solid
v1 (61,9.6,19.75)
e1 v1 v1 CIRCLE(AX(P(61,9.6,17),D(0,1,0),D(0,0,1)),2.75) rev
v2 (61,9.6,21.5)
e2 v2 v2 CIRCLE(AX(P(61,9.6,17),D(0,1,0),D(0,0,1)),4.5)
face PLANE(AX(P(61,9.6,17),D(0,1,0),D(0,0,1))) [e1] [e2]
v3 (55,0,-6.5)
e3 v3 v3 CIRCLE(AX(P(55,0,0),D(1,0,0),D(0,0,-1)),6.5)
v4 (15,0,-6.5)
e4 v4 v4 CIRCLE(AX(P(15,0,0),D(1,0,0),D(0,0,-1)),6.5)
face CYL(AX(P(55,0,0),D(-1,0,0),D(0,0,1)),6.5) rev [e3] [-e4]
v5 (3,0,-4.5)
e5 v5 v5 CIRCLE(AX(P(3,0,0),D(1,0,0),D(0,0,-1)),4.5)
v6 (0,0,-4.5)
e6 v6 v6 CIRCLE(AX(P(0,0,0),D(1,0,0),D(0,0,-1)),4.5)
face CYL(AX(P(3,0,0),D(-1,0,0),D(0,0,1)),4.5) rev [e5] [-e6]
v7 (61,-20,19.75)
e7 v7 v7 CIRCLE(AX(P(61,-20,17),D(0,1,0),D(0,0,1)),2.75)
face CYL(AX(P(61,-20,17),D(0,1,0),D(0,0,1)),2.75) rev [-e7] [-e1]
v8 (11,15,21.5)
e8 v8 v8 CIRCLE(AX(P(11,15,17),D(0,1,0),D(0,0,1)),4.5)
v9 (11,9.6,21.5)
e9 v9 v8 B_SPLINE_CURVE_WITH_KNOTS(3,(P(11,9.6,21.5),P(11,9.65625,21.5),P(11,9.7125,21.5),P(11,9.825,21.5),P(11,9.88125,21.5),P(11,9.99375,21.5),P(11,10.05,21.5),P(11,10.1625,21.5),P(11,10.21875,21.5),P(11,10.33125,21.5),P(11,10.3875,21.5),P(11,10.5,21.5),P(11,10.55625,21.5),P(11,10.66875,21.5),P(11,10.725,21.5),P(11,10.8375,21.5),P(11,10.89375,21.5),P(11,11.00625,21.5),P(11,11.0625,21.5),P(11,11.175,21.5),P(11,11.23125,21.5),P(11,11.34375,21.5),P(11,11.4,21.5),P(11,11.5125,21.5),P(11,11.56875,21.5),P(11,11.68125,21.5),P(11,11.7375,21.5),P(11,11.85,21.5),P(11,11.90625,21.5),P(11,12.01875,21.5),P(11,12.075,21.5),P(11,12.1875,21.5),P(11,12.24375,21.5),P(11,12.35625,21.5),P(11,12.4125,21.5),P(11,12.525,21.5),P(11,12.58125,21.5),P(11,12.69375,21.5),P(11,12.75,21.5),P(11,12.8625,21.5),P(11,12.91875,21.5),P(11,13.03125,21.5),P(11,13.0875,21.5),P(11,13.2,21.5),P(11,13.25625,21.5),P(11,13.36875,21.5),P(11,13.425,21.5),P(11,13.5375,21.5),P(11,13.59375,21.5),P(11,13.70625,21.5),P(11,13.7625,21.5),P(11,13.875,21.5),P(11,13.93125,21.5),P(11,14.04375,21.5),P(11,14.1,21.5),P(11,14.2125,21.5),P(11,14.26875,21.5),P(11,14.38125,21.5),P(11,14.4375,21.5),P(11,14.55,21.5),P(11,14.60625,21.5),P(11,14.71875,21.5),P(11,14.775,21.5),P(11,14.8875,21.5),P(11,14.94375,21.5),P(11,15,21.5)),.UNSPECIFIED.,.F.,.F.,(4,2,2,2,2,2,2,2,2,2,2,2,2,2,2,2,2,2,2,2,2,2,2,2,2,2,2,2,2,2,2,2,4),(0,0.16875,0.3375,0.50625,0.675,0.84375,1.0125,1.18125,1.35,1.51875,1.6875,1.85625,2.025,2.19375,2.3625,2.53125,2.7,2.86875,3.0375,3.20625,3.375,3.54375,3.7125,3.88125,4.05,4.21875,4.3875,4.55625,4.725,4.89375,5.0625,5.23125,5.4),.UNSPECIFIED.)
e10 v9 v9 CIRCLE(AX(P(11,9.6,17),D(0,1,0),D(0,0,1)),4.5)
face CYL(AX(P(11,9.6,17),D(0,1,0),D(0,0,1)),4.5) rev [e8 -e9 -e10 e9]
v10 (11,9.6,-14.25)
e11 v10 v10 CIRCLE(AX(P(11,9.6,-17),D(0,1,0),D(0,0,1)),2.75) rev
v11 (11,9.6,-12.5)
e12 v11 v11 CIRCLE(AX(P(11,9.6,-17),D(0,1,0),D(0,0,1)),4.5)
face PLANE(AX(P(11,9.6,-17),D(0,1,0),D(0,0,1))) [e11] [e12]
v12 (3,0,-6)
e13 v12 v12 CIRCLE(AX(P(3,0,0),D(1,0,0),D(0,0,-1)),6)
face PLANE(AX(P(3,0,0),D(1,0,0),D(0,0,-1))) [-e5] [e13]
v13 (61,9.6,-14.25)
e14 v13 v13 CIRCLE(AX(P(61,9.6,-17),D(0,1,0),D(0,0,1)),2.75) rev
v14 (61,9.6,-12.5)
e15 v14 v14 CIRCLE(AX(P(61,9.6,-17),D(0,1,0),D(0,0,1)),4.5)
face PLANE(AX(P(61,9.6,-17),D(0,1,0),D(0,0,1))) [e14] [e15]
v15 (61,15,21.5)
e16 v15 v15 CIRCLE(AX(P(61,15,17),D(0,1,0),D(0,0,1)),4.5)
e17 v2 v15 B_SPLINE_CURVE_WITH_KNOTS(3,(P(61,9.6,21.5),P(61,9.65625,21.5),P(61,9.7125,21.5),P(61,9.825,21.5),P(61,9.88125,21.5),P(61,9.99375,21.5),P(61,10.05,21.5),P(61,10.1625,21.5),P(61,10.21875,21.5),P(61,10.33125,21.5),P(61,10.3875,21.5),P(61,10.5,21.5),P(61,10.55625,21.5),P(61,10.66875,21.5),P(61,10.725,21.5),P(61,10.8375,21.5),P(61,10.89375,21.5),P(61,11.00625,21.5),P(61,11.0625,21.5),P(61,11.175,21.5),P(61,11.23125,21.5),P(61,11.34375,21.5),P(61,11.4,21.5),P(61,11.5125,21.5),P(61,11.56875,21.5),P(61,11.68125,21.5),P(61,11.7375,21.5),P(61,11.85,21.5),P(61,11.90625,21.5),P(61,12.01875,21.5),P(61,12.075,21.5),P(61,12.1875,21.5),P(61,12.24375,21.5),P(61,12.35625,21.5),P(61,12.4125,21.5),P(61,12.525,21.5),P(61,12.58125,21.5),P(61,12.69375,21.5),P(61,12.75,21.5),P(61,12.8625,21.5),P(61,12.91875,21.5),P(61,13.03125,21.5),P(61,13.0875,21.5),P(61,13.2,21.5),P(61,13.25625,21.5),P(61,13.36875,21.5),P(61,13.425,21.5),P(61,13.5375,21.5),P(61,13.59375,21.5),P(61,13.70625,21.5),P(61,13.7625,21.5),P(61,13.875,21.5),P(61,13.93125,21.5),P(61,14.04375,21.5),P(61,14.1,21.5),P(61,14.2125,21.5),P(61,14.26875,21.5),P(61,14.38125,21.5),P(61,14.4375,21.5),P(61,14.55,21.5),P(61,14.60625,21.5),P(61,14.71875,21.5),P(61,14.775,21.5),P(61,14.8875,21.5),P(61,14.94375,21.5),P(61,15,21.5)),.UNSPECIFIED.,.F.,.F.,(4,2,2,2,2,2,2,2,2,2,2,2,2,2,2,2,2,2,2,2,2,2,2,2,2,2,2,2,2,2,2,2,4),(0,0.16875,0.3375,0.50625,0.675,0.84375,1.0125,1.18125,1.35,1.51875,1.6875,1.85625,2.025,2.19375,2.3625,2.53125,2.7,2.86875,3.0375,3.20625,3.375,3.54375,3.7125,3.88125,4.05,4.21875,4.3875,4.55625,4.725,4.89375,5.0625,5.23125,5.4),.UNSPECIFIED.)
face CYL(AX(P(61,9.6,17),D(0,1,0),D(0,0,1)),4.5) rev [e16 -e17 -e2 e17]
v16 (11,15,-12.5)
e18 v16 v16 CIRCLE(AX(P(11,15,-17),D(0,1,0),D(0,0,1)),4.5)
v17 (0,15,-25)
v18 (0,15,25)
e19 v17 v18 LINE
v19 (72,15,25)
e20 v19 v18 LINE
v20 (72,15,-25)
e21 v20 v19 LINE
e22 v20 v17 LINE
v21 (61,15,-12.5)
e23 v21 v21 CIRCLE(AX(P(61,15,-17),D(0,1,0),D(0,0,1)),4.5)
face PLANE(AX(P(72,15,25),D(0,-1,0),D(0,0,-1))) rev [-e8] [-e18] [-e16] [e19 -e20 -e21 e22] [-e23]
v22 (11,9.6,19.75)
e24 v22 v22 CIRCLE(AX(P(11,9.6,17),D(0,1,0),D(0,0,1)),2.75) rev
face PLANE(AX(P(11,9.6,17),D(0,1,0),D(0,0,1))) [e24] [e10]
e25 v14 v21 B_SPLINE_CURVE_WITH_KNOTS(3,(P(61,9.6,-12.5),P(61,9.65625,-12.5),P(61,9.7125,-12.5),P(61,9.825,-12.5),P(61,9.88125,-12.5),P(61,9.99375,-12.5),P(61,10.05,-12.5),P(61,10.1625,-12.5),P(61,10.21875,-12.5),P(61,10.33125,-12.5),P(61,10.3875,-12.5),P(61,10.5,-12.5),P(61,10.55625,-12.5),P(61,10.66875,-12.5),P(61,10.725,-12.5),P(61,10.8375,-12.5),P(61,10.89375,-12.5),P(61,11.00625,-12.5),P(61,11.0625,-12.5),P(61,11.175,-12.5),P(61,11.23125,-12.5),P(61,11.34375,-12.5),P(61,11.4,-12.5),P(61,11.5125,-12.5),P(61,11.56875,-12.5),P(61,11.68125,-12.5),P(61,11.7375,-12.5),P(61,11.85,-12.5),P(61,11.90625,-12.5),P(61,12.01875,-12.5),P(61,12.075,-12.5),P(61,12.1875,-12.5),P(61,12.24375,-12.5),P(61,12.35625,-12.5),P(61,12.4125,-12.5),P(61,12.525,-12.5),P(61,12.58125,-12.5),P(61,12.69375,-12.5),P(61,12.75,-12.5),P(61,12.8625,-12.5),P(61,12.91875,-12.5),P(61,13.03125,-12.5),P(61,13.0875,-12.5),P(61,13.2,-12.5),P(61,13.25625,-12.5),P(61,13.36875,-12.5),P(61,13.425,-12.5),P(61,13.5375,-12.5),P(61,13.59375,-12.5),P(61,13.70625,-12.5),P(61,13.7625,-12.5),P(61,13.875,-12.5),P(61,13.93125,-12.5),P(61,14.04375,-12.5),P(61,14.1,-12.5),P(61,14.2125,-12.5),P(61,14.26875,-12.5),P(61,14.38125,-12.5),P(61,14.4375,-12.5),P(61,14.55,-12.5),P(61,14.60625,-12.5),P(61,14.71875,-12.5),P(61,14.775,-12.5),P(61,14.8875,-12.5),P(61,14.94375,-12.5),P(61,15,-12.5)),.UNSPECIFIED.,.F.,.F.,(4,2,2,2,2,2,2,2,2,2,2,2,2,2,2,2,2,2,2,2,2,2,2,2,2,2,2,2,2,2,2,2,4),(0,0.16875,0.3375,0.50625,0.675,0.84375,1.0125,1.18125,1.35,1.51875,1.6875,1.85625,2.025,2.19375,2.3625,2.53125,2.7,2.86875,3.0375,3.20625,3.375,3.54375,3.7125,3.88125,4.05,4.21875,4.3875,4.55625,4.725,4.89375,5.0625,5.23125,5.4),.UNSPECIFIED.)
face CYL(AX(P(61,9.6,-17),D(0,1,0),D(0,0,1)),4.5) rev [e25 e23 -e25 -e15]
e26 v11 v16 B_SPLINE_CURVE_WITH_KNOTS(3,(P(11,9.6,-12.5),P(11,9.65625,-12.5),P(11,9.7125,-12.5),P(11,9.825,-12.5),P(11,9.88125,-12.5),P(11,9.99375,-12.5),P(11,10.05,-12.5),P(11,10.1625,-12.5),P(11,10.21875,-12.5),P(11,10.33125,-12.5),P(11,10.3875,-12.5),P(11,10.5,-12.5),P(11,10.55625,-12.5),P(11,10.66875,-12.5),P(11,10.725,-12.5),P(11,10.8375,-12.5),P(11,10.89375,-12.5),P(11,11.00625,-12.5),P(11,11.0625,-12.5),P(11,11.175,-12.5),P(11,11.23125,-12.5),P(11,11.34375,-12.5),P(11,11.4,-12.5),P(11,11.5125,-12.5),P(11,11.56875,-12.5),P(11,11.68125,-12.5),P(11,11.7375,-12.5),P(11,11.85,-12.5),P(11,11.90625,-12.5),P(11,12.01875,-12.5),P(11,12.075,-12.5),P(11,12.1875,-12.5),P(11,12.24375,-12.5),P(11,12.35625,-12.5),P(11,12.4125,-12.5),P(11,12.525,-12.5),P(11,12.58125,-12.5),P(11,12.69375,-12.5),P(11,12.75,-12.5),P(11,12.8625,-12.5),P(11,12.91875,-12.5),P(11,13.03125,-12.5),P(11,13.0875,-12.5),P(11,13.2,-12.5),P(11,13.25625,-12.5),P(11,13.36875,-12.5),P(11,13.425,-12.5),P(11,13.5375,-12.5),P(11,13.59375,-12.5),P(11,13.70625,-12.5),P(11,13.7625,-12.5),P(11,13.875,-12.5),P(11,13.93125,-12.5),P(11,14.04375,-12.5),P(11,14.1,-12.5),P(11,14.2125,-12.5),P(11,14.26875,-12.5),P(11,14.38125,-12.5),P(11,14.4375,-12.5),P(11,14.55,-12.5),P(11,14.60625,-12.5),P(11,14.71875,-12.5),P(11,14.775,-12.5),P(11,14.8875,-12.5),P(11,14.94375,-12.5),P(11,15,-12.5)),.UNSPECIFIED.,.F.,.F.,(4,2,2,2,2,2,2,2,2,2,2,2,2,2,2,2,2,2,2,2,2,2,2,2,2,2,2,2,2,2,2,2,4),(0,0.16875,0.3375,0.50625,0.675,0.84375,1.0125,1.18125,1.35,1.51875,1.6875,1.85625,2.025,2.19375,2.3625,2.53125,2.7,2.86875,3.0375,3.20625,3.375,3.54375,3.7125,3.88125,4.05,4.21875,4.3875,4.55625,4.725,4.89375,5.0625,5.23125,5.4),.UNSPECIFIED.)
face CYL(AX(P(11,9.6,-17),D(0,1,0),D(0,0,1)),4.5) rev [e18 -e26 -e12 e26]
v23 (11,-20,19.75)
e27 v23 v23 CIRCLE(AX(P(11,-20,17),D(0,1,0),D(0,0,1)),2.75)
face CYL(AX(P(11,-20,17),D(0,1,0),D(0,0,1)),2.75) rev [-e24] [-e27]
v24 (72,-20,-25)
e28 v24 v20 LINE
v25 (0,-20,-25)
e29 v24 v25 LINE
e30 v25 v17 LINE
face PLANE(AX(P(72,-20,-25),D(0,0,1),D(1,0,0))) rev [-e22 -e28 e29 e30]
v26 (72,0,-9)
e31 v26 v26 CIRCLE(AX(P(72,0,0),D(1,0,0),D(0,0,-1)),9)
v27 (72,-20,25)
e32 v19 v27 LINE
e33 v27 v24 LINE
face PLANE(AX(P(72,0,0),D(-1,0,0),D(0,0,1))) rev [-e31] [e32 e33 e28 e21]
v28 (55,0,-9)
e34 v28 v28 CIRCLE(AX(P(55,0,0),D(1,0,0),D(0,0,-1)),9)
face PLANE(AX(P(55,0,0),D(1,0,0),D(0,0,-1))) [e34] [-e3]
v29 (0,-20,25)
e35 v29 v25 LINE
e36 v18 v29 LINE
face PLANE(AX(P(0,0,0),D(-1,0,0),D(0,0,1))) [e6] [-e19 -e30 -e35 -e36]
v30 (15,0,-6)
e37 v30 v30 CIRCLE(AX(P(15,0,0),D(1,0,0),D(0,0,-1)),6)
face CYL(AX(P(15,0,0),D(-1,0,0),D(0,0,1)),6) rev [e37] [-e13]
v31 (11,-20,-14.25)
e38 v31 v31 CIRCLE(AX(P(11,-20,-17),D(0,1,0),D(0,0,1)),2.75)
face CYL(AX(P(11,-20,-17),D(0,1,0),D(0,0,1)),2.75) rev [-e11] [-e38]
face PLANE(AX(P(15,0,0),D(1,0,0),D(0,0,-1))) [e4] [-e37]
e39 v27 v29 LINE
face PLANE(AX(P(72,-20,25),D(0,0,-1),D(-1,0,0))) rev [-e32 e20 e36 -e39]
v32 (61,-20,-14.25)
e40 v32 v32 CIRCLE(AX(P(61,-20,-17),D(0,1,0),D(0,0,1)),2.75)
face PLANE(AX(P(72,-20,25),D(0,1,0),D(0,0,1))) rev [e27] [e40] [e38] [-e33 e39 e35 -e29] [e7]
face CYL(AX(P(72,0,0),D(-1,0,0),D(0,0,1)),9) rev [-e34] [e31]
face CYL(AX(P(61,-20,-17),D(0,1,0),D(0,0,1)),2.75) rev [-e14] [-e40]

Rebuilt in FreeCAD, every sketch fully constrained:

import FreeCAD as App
import Part
import Sketcher
from FreeCAD import Vector

doc = App.newDocument("Part")
body = doc.addObject("PartDesign::Body", "Body")

sketch1 = body.newObject("Sketcher::SketchObject", "Sketch")
sketch1.AttachmentSupport = (doc.getObject("YZ_Plane"), [""])
sketch1.MapMode = "FlatFace"
sketch1.addGeometry([
    Part.LineSegment(Vector(15, 25, 0), Vector(-20, 25, 0)),
    Part.LineSegment(Vector(-20, 25, 0), Vector(-20, -25, 0)),
    Part.LineSegment(Vector(-20, -25, 0), Vector(15, -25, 0)),
    Part.LineSegment(Vector(15, -25, 0), Vector(15, 25, 0)),
], False)
sketch1.addConstraint([
    Sketcher.Constraint("Coincident", 0, 2, 1, 1),
    Sketcher.Constraint("Coincident", 1, 2, 2, 1),
    Sketcher.Constraint("Coincident", 2, 2, 3, 1),
    Sketcher.Constraint("Coincident", 3, 2, 0, 1),
    Sketcher.Constraint("Horizontal", 0),
    Sketcher.Constraint("Vertical", 1),
    Sketcher.Constraint("Horizontal", 2),
    Sketcher.Constraint("Vertical", 3),
    Sketcher.Constraint("DistanceX", 0, 2, 0, 1, 35.0),
    Sketcher.Constraint("DistanceY", 1, 2, 1, 1, 50.0),
    Sketcher.Constraint("DistanceX", 0, 2, -1, 1, 20.0),
    Sketcher.Constraint("DistanceY", -1, 1, 0, 2, 25.0),
])
pad1 = body.newObject("PartDesign::Pad", "Pad")
pad1.Profile = sketch1
pad1.Length = 72

sketch2 = body.newObject("Sketcher::SketchObject", "Sketch001")
sketch2.AttachmentSupport = (doc.getObject("YZ_Plane"), [""])
sketch2.MapMode = "FlatFace"
sketch2.addGeometry(Part.Circle(Vector(0, 0, 0), Vector(0, 0, 1), 4.5), False)
sketch2.addConstraint([
    Sketcher.Constraint("Coincident", 0, 3, -1, 1),
    Sketcher.Constraint("Diameter", 0, 9.0),
])
pocket1 = body.newObject("PartDesign::Pocket", "Pocket")
pocket1.Profile = sketch2
pocket1.Length = 3
pocket1.Reversed = True

sketch3 = body.newObject("Sketcher::SketchObject", "Sketch002")
sketch3.AttachmentSupport = (doc.getObject("YZ_Plane"), [""])
sketch3.MapMode = "FlatFace"
sketch3.AttachmentOffset = App.Placement(Vector(0, 0, 3), App.Rotation())
sketch3.addGeometry(Part.Circle(Vector(0, 0, 0), Vector(0, 0, 1), 6), False)
sketch3.addConstraint([
    Sketcher.Constraint("Coincident", 0, 3, -1, 1),
    Sketcher.Constraint("Diameter", 0, 12.0),
])
pocket2 = body.newObject("PartDesign::Pocket", "Pocket001")
pocket2.Profile = sketch3
pocket2.Length = 12
pocket2.Reversed = True

sketch4 = body.newObject("Sketcher::SketchObject", "Sketch003")
sketch4.AttachmentSupport = (doc.getObject("YZ_Plane"), [""])
sketch4.MapMode = "FlatFace"
sketch4.AttachmentOffset = App.Placement(Vector(0, 0, 15), App.Rotation())
sketch4.addGeometry(Part.Circle(Vector(0, 0, 0), Vector(0, 0, 1), 6.5), False)
sketch4.addConstraint([
    Sketcher.Constraint("Coincident", 0, 3, -1, 1),
    Sketcher.Constraint("Diameter", 0, 13.0),
])
pocket3 = body.newObject("PartDesign::Pocket", "Pocket002")
pocket3.Profile = sketch4
pocket3.Length = 40
pocket3.Reversed = True

sketch5 = body.newObject("Sketcher::SketchObject", "Sketch004")
sketch5.AttachmentSupport = (doc.getObject("YZ_Plane"), [""])
sketch5.MapMode = "FlatFace"
sketch5.AttachmentOffset = App.Placement(Vector(0, 0, 55), App.Rotation())
sketch5.addGeometry(Part.Circle(Vector(0, 0, 0), Vector(0, 0, 1), 9), False)
sketch5.addConstraint([
    Sketcher.Constraint("Coincident", 0, 3, -1, 1),
    Sketcher.Constraint("Diameter", 0, 18.0),
])
pocket4 = body.newObject("PartDesign::Pocket", "Pocket003")
pocket4.Profile = sketch5
pocket4.Length = 17
pocket4.Reversed = True

sketch6 = body.newObject("Sketcher::SketchObject", "Sketch005")
sketch6.AttachmentSupport = (doc.getObject("XZ_Plane"), [""])
sketch6.MapMode = "FlatFace"
sketch6.AttachmentOffset = App.Placement(Vector(0, 0, -15), App.Rotation())
sketch6.addGeometry([
    Part.Circle(Vector(11, -17, 0), Vector(0, 0, 1), 2.75),
    Part.Circle(Vector(61, -17, 0), Vector(0, 0, 1), 2.75),
    Part.Circle(Vector(11, 17, 0), Vector(0, 0, 1), 2.75),
    Part.Circle(Vector(61, 17, 0), Vector(0, 0, 1), 2.75),
], False)
sketch6.addConstraint([
    Sketcher.Constraint("Equal", 0, 1),
    Sketcher.Constraint("Equal", 1, 2),
    Sketcher.Constraint("Equal", 2, 3),
    Sketcher.Constraint("Symmetric", 0, 3, 2, 3, -1),
    Sketcher.Constraint("Symmetric", 1, 3, 3, 3, -1),
    Sketcher.Constraint("Horizontal", 0, 3, 1, 3),
    Sketcher.Constraint("Diameter", 0, 5.5),
    Sketcher.Constraint("DistanceX", -1, 1, 0, 3, 11.0),
    Sketcher.Constraint("DistanceY", 0, 3, -1, 1, 17.0),
    Sketcher.Constraint("DistanceX", -1, 1, 1, 3, 61.0),
])
pocket5 = body.newObject("PartDesign::Pocket", "Pocket004")
pocket5.Profile = sketch6
pocket5.Length = 35
pocket5.Reversed = True

sketch7 = body.newObject("Sketcher::SketchObject", "Sketch006")
sketch7.AttachmentSupport = (doc.getObject("XZ_Plane"), [""])
sketch7.MapMode = "FlatFace"
sketch7.AttachmentOffset = App.Placement(Vector(0, 0, -15), App.Rotation())
sketch7.addGeometry([
    Part.Circle(Vector(11, -17, 0), Vector(0, 0, 1), 4.5),
    Part.Circle(Vector(61, -17, 0), Vector(0, 0, 1), 4.5),
    Part.Circle(Vector(11, 17, 0), Vector(0, 0, 1), 4.5),
    Part.Circle(Vector(61, 17, 0), Vector(0, 0, 1), 4.5),
], False)
sketch7.addConstraint([
    Sketcher.Constraint("Equal", 0, 1),
    Sketcher.Constraint("Equal", 1, 2),
    Sketcher.Constraint("Equal", 2, 3),
    Sketcher.Constraint("Symmetric", 0, 3, 2, 3, -1),
    Sketcher.Constraint("Symmetric", 1, 3, 3, 3, -1),
    Sketcher.Constraint("Horizontal", 0, 3, 1, 3),
    Sketcher.Constraint("Diameter", 0, 9.0),
    Sketcher.Constraint("DistanceX", -1, 1, 0, 3, 11.0),
    Sketcher.Constraint("DistanceY", 0, 3, -1, 1, 17.0),
    Sketcher.Constraint("DistanceX", -1, 1, 1, 3, 61.0),
])
pocket6 = body.newObject("PartDesign::Pocket", "Pocket005")
pocket6.Profile = sketch7
pocket6.Length = 5.4
pocket6.Reversed = True

doc.recompute()
